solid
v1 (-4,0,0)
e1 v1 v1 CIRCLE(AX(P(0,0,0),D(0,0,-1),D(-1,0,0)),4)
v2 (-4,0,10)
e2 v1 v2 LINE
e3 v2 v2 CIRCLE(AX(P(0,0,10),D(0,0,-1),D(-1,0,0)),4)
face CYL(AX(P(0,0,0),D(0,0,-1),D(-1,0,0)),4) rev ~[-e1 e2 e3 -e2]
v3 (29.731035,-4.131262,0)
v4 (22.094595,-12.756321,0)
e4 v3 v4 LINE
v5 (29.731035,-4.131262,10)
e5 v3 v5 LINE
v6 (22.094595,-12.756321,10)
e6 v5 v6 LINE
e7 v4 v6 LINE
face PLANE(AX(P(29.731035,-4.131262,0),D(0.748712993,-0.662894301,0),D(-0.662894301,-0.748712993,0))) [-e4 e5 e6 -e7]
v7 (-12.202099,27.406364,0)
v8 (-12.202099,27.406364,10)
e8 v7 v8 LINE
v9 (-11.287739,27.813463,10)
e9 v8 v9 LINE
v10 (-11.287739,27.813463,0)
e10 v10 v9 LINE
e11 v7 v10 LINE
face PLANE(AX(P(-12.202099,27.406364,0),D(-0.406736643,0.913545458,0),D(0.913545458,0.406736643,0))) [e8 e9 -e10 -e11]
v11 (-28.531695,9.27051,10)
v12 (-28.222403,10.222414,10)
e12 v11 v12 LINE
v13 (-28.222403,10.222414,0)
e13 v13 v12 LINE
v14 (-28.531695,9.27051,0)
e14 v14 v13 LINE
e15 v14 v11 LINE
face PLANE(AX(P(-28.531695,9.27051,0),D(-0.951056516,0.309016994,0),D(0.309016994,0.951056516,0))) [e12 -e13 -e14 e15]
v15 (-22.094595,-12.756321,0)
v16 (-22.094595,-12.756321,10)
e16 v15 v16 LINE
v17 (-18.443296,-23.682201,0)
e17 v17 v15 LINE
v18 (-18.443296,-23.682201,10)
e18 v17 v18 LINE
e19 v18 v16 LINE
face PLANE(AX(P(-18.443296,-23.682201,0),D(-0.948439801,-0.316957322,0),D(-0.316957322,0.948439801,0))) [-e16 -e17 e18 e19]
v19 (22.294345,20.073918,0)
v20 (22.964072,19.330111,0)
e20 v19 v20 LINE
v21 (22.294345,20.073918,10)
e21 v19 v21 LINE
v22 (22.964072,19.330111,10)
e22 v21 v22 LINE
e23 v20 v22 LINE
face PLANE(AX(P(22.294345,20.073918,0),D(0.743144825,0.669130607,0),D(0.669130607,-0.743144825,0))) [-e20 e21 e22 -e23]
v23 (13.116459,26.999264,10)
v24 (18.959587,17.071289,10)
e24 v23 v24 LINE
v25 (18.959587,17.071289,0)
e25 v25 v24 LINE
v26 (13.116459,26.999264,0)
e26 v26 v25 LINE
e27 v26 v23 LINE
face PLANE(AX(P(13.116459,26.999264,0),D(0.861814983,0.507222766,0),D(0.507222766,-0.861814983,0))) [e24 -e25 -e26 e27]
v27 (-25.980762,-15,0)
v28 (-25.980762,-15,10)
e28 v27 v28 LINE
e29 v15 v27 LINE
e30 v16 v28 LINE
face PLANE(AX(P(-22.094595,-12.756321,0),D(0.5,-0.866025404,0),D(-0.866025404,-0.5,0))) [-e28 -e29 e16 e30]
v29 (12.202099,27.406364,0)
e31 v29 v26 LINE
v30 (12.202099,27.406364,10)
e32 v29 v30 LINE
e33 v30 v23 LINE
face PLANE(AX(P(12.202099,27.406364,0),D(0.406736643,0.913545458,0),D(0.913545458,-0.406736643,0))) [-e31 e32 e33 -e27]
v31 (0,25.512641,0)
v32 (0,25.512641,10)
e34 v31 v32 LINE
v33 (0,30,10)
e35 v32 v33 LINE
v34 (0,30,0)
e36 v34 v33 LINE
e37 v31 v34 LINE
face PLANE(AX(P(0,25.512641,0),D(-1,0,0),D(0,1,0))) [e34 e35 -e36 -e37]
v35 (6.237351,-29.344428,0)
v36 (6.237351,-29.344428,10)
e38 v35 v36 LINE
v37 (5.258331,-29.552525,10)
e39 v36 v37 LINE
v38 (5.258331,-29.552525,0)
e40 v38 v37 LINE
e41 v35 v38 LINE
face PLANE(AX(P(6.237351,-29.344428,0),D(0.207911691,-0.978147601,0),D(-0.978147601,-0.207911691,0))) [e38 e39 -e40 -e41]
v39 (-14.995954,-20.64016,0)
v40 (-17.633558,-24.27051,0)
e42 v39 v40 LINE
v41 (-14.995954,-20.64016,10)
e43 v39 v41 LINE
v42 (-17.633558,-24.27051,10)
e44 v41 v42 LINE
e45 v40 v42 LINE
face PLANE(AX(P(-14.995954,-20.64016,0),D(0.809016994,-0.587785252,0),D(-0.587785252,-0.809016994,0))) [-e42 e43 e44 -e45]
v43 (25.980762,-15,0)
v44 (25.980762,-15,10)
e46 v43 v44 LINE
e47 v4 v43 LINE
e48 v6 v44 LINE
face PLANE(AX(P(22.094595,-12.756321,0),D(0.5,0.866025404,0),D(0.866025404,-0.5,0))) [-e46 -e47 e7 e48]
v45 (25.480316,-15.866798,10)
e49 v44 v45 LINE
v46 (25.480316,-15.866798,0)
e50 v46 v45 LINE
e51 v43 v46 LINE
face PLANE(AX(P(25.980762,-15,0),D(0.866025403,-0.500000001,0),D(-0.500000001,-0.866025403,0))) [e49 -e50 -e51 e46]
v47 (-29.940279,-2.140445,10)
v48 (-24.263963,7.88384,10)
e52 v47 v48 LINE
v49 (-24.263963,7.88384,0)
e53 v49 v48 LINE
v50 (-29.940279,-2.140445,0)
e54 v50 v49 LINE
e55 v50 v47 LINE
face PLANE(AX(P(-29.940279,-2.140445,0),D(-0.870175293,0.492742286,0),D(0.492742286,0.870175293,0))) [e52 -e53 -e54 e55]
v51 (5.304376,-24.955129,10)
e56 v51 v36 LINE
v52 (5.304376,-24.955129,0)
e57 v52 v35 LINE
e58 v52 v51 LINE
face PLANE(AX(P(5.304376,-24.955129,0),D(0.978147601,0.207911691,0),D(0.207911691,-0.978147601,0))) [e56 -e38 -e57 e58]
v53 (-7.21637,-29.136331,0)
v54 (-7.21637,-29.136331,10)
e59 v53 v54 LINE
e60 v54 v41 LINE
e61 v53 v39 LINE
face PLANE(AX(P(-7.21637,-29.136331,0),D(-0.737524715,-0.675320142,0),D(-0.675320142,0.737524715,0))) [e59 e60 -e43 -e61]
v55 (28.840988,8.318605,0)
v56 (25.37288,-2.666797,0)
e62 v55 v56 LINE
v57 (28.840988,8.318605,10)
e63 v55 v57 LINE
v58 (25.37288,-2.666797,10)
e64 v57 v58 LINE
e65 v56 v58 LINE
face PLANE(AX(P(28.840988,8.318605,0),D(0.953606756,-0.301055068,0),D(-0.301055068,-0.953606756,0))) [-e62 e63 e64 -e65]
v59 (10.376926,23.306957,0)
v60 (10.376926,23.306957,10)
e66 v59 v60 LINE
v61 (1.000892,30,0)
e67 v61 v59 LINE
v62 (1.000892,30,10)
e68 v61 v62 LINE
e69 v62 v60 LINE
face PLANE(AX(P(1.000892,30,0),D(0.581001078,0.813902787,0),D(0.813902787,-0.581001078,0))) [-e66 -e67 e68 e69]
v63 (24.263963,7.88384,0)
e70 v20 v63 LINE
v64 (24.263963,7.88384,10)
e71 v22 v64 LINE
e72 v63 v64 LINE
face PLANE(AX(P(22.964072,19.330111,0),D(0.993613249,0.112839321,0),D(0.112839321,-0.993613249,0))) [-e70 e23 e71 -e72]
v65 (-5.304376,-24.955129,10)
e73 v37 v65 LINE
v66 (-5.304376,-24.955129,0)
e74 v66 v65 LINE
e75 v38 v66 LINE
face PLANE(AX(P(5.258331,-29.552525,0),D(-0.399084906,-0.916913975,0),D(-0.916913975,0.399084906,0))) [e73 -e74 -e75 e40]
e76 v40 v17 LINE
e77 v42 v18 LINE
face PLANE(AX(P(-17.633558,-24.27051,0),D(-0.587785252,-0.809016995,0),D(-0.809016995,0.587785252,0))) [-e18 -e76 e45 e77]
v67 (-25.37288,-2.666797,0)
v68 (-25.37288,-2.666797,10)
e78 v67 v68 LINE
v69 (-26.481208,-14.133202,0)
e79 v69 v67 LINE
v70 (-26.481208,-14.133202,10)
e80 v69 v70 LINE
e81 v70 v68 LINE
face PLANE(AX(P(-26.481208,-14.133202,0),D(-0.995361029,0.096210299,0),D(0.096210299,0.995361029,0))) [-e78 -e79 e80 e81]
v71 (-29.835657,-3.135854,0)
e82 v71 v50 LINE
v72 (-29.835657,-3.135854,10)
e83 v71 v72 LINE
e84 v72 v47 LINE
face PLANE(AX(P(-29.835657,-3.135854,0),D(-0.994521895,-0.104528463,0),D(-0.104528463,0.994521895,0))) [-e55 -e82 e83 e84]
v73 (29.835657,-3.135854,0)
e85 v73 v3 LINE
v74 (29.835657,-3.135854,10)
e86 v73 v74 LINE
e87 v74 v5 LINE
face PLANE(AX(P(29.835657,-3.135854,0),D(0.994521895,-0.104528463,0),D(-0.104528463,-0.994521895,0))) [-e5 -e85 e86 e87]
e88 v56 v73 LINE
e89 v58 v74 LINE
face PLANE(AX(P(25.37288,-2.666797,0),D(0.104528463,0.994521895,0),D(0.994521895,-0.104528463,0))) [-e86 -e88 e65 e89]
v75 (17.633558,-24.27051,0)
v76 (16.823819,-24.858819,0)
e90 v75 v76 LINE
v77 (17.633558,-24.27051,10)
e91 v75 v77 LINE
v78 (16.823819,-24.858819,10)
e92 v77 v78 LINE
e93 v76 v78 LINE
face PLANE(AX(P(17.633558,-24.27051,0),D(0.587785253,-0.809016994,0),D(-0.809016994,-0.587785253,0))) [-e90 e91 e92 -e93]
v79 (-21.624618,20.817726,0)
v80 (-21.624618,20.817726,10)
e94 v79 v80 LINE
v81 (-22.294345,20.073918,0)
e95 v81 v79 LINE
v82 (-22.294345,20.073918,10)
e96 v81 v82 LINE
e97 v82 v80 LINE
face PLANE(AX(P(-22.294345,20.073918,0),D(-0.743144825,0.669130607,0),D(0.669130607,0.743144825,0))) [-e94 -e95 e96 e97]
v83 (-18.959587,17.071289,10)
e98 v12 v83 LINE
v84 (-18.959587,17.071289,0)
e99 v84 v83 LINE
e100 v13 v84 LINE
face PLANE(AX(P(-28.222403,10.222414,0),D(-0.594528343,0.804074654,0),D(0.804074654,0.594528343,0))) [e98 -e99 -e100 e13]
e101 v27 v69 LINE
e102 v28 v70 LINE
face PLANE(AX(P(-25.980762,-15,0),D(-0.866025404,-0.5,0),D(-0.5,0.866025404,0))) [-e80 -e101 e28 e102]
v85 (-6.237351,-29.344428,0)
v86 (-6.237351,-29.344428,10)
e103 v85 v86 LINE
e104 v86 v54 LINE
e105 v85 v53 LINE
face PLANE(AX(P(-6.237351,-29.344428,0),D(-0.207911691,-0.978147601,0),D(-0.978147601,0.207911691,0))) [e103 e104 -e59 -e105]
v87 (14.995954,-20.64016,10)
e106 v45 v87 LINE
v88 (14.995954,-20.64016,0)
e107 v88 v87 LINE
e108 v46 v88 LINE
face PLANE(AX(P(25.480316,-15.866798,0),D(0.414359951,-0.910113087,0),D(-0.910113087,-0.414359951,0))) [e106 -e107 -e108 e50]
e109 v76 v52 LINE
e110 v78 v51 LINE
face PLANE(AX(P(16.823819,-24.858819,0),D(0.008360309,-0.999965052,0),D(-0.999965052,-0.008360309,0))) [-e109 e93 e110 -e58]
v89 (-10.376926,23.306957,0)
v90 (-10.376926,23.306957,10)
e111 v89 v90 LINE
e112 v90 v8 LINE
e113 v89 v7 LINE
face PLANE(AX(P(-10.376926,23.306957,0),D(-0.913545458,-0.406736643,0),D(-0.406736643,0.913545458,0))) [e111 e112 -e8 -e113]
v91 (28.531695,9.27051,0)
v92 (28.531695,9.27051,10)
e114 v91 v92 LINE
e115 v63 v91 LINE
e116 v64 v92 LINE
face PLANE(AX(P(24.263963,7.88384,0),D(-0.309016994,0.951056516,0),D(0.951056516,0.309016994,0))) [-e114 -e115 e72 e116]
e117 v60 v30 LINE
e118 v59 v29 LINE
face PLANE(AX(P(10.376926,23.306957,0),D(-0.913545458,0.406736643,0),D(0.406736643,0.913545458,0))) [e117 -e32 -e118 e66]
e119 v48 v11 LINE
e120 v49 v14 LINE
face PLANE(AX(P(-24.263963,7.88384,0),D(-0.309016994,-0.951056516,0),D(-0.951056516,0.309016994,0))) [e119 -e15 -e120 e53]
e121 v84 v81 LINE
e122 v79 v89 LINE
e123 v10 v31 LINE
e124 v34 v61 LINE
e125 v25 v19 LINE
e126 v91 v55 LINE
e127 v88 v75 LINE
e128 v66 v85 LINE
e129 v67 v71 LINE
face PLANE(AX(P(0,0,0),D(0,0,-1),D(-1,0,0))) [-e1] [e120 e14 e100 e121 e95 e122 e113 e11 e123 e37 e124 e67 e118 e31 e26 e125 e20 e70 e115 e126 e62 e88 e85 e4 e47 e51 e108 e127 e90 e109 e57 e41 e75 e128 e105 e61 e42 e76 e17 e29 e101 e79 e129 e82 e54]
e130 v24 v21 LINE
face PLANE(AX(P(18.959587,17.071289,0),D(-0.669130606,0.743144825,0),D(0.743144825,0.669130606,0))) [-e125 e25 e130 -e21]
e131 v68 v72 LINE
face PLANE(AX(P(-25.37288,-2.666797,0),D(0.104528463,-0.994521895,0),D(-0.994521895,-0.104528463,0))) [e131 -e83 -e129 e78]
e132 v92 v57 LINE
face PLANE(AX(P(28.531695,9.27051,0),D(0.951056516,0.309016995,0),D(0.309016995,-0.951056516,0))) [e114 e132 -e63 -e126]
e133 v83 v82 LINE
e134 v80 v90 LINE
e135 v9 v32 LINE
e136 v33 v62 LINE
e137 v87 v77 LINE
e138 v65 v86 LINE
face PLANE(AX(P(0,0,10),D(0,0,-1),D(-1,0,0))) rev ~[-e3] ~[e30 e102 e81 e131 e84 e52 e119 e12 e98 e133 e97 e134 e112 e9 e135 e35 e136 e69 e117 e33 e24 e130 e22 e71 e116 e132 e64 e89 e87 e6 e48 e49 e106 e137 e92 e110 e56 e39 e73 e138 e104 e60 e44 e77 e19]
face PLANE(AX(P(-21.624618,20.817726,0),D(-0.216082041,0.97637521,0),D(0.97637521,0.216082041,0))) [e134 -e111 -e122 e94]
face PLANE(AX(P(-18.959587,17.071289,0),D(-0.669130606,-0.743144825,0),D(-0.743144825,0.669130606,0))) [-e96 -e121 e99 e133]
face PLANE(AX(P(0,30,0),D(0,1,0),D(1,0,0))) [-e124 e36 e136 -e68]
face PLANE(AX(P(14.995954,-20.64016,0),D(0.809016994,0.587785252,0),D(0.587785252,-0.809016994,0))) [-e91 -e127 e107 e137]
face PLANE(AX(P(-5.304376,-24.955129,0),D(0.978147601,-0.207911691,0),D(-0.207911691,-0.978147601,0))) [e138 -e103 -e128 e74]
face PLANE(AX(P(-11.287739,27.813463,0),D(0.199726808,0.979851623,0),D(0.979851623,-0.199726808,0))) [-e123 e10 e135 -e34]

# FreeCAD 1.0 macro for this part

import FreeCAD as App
import Part
import Sketcher

V = App.Vector
Q = App.Units.Quantity


def add_polygon(sketch, points):
    """Adds a closed chain of lines whose ends are joined by coincident constraints."""
    first, n = sketch.GeometryCount, len(points)
    for a, b in zip(points, points[1:] + points[:1]):
        sketch.addGeometry(Part.LineSegment(App.Vector(*a, 0), App.Vector(*b, 0)), False)
    for i in range(n):
        sketch.addConstraint(Sketcher.Constraint("Coincident", first + i, 2, first + (i + 1) % n, 1))

doc = App.newDocument("Part")
params = doc.addObject("Spreadsheet::Sheet", "Params")
for row, (alias, value) in enumerate([
    ("pad1_length", "10 mm"),
    ("sketch2_diameter", "8 mm"),
    ("pocket1_length", "10 mm"),
], start=1):
    params.set(f"A{row}", alias)
    params.set(f"B{row}", "=" + value)
    params.setAlias(f"B{row}", alias)

body = doc.addObject("PartDesign::Body", "Body")

# Sketch on XY plane
sketch1 = body.newObject("Sketcher::SketchObject", "Sketch")
sketch1.AttachmentSupport = (doc.getObject("XY_Plane"), [""])
sketch1.MapMode = "FlatFace"
add_polygon(sketch1, [(0, 30), (0, 25.512641), (-11.287739, 27.813463), (-12.202099, 27.406364), (-10.376926, 23.306957), (-21.624618, 20.817726), (-22.294345, 20.073918), (-18.959587, 17.071289), (-28.222403, 10.222414), (-28.531695, 9.27051), (-24.263963, 7.88384), (-29.940279, -2.140445), (-29.835657, -3.135854), (-25.37288, -2.666797), (-26.481208, -14.133202), (-25.980762, -15), (-22.094595, -12.756321), (-18.443296, -23.682201), (-17.633558, -24.27051), (-14.995954, -20.64016), (-7.21637, -29.136331), (-6.237351, -29.344428), (-5.304376, -24.955129), (5.258331, -29.552525), (6.237351, -29.344428), (5.304376, -24.955129), (16.823819, -24.858819), (17.633558, -24.27051), (14.995954, -20.64016), (25.480316, -15.866798), (25.980762, -15), (22.094595, -12.756321), (29.731035, -4.131262), (29.835657, -3.135854), (25.37288, -2.666797), (28.840988, 8.318605), (28.531695, 9.27051), (24.263963, 7.88384), (22.964072, 19.330111), (22.294345, 20.073918), (18.959587, 17.071289), (13.116459, 26.999264), (12.202099, 27.406364), (10.376926, 23.306957), (1.000892, 30)])  # lines 0-44
sketch1.addConstraint([
    Sketcher.Constraint("Vertical", 0),
    Sketcher.Constraint("Horizontal", 44),
    Sketcher.Constraint("Symmetric", 20, 2, 23, 2, -2),
    Sketcher.Constraint("Symmetric", 21, 2, 24, 2, -2),
    Sketcher.Constraint("Symmetric", 17, 2, 26, 2, -2),
    Sketcher.Constraint("Symmetric", 18, 2, 27, 2, -2),
    Sketcher.Constraint("Symmetric", 14, 2, 29, 2, -2),
    Sketcher.Constraint("Symmetric", 15, 2, 30, 2, -2),
    Sketcher.Constraint("Symmetric", 11, 2, 32, 2, -2),
    Sketcher.Constraint("Symmetric", 12, 2, 33, 2, -2),
    Sketcher.Constraint("Symmetric", 8, 2, 35, 2, -2),
    Sketcher.Constraint("Symmetric", 9, 2, 36, 2, -2),
    Sketcher.Constraint("Symmetric", 5, 2, 38, 2, -2),
    Sketcher.Constraint("Symmetric", 6, 2, 39, 2, -2),
    Sketcher.Constraint("Symmetric", 2, 2, 41, 2, -2),
    Sketcher.Constraint("Symmetric", 3, 2, 42, 2, -2),
    Sketcher.Constraint("PointOnObject", 0, 2, -2),
    Sketcher.Constraint("Perpendicular", 2, 3),
    Sketcher.Constraint("Perpendicular", 5, 6),
    Sketcher.Constraint("Perpendicular", 8, 9),
    Sketcher.Constraint("Perpendicular", 11, 12),
    Sketcher.Constraint("Perpendicular", 14, 15),
    Sketcher.Constraint("Perpendicular", 17, 18),
    Sketcher.Constraint("Perpendicular", 20, 21),
    Sketcher.Constraint("Perpendicular", 23, 24),
    Sketcher.Constraint("Perpendicular", 26, 27),
    Sketcher.Constraint("Perpendicular", 29, 30),
    Sketcher.Constraint("Perpendicular", 32, 33),
    Sketcher.Constraint("Perpendicular", 35, 36),
    Sketcher.Constraint("Perpendicular", 38, 39),
    Sketcher.Constraint("Perpendicular", 41, 42),
    Sketcher.Constraint("Equal", 1, 4),
    Sketcher.Constraint("Equal", 2, 5),
    Sketcher.Constraint("Equal", 3, 6),
    Sketcher.Constraint("Equal", 4, 7),
    Sketcher.Constraint("Equal", 5, 8),
    Sketcher.Constraint("Equal", 6, 9),
    Sketcher.Constraint("Equal", 7, 10),
    Sketcher.Constraint("Equal", 8, 11),
    Sketcher.Constraint("Equal", 9, 12),
    Sketcher.Constraint("Equal", 10, 13),
    Sketcher.Constraint("Equal", 11, 14),
    Sketcher.Constraint("Equal", 12, 15),
    Sketcher.Constraint("Equal", 13, 16),
    Sketcher.Constraint("Equal", 14, 17),
    Sketcher.Constraint("Equal", 15, 18),
    Sketcher.Constraint("Equal", 16, 19),
    Sketcher.Constraint("Equal", 17, 20),
    Sketcher.Constraint("Equal", 18, 21),
    Sketcher.Constraint("Equal", 19, 22),
    Sketcher.Constraint("Equal", 20, 23),
    Sketcher.Constraint("Equal", 22, 25),
    Sketcher.Constraint("Equal", 23, 26),
    Sketcher.Constraint("Equal", 25, 28),
    Sketcher.Constraint("Equal", 26, 29),
    Sketcher.Constraint("Equal", 28, 31),
    Sketcher.Constraint("Equal", 29, 32),
    Sketcher.Constraint("Equal", 31, 34),
    Sketcher.Constraint("Equal", 32, 35),
    Sketcher.Constraint("Equal", 34, 37),
    Sketcher.Constraint("Equal", 35, 38),
    Sketcher.Constraint("Equal", 37, 40),
    Sketcher.Constraint("Equal", 38, 41),
    Sketcher.Constraint("Equal", 40, 43),
    Sketcher.Constraint("Angle", 2, Q("-156 deg")),
    Sketcher.Constraint("Angle", 5, Q("-132 deg")),
    Sketcher.Constraint("Angle", 8, Q("-108 deg")),
    Sketcher.Constraint("Angle", 11, Q("-84 deg")),
    Sketcher.Constraint("Angle", 14, Q("-60 deg")),
    Sketcher.Constraint("Angle", 17, Q("-36 deg")),
    Sketcher.Constraint("Angle", 20, Q("-12 deg")),
    Sketcher.Constraint("DistanceY", 14, 2, -1, 1, Q("15 mm")),
    Sketcher.Constraint("DistanceY", -1, 1, 43, 2, Q("30 mm")),
    Sketcher.Constraint("DistanceY", 28, 2, 33, 2, Q("13.2 mm")),
    Sketcher.Constraint("DistanceY", 16, 2, 13, 2, Q("9.548998 mm")),
    Sketcher.Constraint("DistanceX", 44, 2, 44, 1, Q("1.000892 mm")),
])
pad1 = body.newObject("PartDesign::Pad", "Pad")
pad1.Profile = sketch1
pad1.setExpression("Length", "Params.pad1_length")

# Sketch on XY plane
sketch2 = body.newObject("Sketcher::SketchObject", "Sketch001")
sketch2.AttachmentSupport = (doc.getObject("XY_Plane"), [""])
sketch2.MapMode = "FlatFace"
sketch2.addGeometry(Part.Circle(V(0, 0, 0), V(0, 0, 1), 4), False)
sketch2.addConstraint([
    Sketcher.Constraint("Coincident", 0, 3, -1, 1),
    Sketcher.Constraint("Diameter", 0, Q("8 mm")),
])
sketch2.setExpression("Constraints[1]", "Params.sketch2_diameter")
pocket1 = body.newObject("PartDesign::Pocket", "Pocket")
pocket1.Profile = sketch2
pocket1.setExpression("Length", "Params.pocket1_length")
pocket1.Reversed = True

doc.recompute()
